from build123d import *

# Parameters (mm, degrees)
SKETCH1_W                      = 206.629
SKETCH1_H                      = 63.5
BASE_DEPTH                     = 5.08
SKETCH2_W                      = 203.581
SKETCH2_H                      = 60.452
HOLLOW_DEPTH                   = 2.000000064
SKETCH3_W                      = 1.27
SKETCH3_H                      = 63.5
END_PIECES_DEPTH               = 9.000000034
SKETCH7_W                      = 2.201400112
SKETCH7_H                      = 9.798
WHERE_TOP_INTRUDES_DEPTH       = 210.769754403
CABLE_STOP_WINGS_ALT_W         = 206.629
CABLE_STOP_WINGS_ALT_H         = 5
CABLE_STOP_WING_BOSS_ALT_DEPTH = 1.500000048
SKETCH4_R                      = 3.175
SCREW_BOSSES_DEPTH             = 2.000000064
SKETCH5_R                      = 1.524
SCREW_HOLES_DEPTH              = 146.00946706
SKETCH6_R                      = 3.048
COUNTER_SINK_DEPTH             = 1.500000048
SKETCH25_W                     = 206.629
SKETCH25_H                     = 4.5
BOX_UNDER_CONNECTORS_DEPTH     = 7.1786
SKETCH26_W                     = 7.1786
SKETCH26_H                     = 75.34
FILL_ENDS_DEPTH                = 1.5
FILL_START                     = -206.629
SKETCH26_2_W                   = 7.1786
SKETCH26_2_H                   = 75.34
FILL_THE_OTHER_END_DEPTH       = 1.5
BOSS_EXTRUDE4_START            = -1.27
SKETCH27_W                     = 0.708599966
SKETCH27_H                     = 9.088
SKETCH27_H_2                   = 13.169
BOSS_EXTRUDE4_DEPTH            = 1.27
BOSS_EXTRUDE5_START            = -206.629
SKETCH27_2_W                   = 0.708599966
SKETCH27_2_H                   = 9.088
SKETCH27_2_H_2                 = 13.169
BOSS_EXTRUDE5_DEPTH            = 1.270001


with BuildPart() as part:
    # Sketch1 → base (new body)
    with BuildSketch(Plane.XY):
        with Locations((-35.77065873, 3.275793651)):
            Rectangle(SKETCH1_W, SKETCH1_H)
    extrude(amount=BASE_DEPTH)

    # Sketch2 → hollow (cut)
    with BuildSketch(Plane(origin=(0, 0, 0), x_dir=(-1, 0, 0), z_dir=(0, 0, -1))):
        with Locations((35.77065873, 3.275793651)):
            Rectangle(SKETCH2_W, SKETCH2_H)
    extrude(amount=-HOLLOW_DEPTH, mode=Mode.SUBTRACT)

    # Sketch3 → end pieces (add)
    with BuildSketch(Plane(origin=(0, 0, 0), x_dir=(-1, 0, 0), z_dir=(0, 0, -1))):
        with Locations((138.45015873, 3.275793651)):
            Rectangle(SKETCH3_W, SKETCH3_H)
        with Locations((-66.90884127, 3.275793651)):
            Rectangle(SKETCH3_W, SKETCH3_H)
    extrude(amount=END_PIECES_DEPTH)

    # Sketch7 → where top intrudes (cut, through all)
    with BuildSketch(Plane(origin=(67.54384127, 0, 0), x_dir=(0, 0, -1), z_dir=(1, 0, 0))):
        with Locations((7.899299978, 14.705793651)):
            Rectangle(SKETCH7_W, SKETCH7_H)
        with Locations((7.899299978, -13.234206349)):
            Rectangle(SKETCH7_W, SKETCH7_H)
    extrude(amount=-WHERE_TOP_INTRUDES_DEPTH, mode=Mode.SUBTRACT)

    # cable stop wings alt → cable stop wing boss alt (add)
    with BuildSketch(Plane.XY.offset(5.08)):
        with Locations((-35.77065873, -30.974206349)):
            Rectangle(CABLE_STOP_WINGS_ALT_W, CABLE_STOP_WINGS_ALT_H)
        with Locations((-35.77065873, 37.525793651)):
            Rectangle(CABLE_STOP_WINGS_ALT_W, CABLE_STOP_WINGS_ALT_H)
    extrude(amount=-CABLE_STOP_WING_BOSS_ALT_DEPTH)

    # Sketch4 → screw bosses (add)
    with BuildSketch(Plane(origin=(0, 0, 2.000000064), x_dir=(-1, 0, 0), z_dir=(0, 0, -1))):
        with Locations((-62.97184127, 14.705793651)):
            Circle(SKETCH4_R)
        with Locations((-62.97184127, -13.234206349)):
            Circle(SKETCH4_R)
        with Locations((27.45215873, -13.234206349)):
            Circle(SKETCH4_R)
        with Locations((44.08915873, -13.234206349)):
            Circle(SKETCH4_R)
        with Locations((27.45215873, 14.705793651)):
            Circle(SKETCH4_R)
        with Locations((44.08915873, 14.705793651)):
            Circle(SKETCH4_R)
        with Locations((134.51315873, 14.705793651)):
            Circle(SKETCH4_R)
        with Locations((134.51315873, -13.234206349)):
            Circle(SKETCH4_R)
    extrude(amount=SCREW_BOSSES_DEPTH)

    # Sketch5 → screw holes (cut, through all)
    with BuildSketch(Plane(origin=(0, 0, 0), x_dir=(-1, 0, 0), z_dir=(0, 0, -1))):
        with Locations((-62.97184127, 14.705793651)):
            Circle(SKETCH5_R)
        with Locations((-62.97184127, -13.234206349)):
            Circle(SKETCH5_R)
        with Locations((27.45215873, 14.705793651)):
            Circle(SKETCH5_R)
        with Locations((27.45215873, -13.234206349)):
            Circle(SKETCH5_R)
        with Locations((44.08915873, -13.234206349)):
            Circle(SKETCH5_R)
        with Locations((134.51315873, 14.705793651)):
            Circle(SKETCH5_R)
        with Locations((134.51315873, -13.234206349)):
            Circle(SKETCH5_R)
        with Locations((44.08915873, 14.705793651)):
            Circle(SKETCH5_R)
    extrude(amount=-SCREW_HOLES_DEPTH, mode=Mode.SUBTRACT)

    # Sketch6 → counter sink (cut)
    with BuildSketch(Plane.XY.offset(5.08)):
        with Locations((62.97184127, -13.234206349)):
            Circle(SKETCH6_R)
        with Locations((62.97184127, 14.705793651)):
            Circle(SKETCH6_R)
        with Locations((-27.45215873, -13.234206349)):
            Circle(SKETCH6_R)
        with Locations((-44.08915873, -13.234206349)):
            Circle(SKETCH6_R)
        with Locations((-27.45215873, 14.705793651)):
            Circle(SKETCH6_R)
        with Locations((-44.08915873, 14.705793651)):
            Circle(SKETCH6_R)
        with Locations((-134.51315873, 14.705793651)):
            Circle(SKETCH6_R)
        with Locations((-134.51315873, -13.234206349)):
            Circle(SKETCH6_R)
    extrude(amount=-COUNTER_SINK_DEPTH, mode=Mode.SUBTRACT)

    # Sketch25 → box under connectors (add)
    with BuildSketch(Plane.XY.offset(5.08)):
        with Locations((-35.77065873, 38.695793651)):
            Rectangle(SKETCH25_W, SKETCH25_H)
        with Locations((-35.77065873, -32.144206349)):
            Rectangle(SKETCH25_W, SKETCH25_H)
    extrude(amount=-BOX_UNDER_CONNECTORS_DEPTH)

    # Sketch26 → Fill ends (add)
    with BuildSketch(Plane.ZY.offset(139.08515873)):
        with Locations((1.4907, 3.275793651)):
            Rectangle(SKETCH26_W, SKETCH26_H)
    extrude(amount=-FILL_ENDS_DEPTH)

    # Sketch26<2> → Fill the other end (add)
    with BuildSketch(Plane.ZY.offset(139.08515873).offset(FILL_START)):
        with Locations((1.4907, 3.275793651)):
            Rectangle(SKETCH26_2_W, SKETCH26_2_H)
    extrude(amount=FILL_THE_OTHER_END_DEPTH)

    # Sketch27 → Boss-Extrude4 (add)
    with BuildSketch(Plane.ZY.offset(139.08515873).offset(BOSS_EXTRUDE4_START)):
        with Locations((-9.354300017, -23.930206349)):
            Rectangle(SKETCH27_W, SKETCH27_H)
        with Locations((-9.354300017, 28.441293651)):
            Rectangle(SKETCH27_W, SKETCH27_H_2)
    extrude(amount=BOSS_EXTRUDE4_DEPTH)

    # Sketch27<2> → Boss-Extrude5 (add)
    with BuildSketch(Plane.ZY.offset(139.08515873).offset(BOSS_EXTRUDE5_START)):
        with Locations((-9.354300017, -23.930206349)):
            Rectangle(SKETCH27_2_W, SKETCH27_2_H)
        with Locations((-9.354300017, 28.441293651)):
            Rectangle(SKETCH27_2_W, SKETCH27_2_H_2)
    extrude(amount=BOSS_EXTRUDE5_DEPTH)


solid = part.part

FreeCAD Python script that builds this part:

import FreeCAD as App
import Part
import Sketcher
from FreeCAD import Vector
Q = App.Units.Quantity

doc = App.newDocument("Part")
body = doc.addObject("PartDesign::Body", "Body")

sketch1 = body.newObject("Sketcher::SketchObject", "Sketch")
sketch1.AttachmentSupport = (doc.getObject("XY_Plane"), [""])
sketch1.MapMode = "FlatFace"
sketch1.addGeometry([
    Part.LineSegment(Vector(-139, 35, 0), Vector(-139, -28, 0)),
    Part.LineSegment(Vector(-139, -28, 0), Vector(68, -28, 0)),
    Part.LineSegment(Vector(68, -28, 0), Vector(68, 35, 0)),
    Part.LineSegment(Vector(68, 35, 0), Vector(-139, 35, 0)),
], False)
sketch1.addConstraint([
    Sketcher.Constraint("Coincident", 0, 2, 1, 1),
    Sketcher.Constraint("Coincident", 1, 2, 2, 1),
    Sketcher.Constraint("Coincident", 2, 2, 3, 1),
    Sketcher.Constraint("Coincident", 3, 2, 0, 1),
    Sketcher.Constraint("Vertical", 0),
    Sketcher.Constraint("Horizontal", 1),
    Sketcher.Constraint("Vertical", 2),
    Sketcher.Constraint("Horizontal", 3),
    Sketcher.Constraint("DistanceY", 0, 2, 0, 1, Q("2.5 in")),
    Sketcher.Constraint("DistanceX", 1, 1, 1, 2, Q("8.135 in")),
    Sketcher.Constraint("DistanceX", 0, 2, -1, 1, Q("139.085159 mm")),
    Sketcher.Constraint("DistanceY", 0, 2, -1, 1, Q("28.474206 mm")),
])
pad1 = body.newObject("PartDesign::Pad", "Pad")
pad1.Profile = sketch1
pad1.Length = Q("0.2 in")

sketch2 = body.newObject("Sketcher::SketchObject", "Sketch001")
sketch2.AttachmentSupport = (doc.getObject("XY_Plane"), [""])
sketch2.MapMode = "FlatFace"
sketch2.addGeometry([
    Part.LineSegment(Vector(66, 34, 0), Vector(66, -27, 0)),
    Part.LineSegment(Vector(66, -27, 0), Vector(-138, -27, 0)),
    Part.LineSegment(Vector(-138, -27, 0), Vector(-138, 34, 0)),
    Part.LineSegment(Vector(-138, 34, 0), Vector(66, 34, 0)),
], False)
sketch2.addConstraint([
    Sketcher.Constraint("Coincident", 0, 2, 1, 1),
    Sketcher.Constraint("Coincident", 1, 2, 2, 1),
    Sketcher.Constraint("Coincident", 2, 2, 3, 1),
    Sketcher.Constraint("Coincident", 3, 2, 0, 1),
    Sketcher.Constraint("Vertical", 0),
    Sketcher.Constraint("Horizontal", 1),
    Sketcher.Constraint("Vertical", 2),
    Sketcher.Constraint("Horizontal", 3),
    Sketcher.Constraint("DistanceY", 0, 2, 0, 1, Q("2.38 in")),
    Sketcher.Constraint("DistanceX", 1, 2, 1, 1, Q("8.015 in")),
    Sketcher.Constraint("DistanceX", -1, 1, 0, 2, Q("66.019841 mm")),
    Sketcher.Constraint("DistanceY", 0, 2, -1, 1, Q("26.950206 mm")),
])
pocket1 = body.newObject("PartDesign::Pocket", "Pocket")
pocket1.Profile = sketch2
pocket1.Length = 2
pocket1.Reversed = True

sketch3 = body.newObject("Sketcher::SketchObject", "Sketch002")
sketch3.AttachmentSupport = (doc.getObject("XY_Plane"), [""])
sketch3.MapMode = "FlatFace"
sketch3.addGeometry([
    Part.LineSegment(Vector(-137.8, 35, 0), Vector(-137.8, -28.5, 0)),
    Part.LineSegment(Vector(-137.8, -28.5, 0), Vector(-139.1, -28.5, 0)),
    Part.LineSegment(Vector(-139.1, -28.5, 0), Vector(-139.1, 35, 0)),
    Part.LineSegment(Vector(-139.1, 35, 0), Vector(-137.8, 35, 0)),
    Part.LineSegment(Vector(67.5, 35, 0), Vector(67.5, -28.5, 0)),
    Part.LineSegment(Vector(67.5, -28.5, 0), Vector(66.3, -28.5, 0)),
    Part.LineSegment(Vector(66.3, -28.5, 0), Vector(66.3, 35, 0)),
    Part.LineSegment(Vector(66.3, 35, 0), Vector(67.5, 35, 0)),
], False)
sketch3.addConstraint([
    Sketcher.Constraint("Coincident", 0, 2, 1, 1),
    Sketcher.Constraint("Coincident", 1, 2, 2, 1),
    Sketcher.Constraint("Coincident", 2, 2, 3, 1),
    Sketcher.Constraint("Coincident", 3, 2, 0, 1),
    Sketcher.Constraint("Coincident", 4, 2, 5, 1),
    Sketcher.Constraint("Coincident", 5, 2, 6, 1),
    Sketcher.Constraint("Coincident", 6, 2, 7, 1),
    Sketcher.Constraint("Coincident", 7, 2, 4, 1),
    Sketcher.Constraint("Vertical", 0),
    Sketcher.Constraint("Horizontal", 1),
    Sketcher.Constraint("Vertical", 2),
    Sketcher.Constraint("Horizontal", 3),
    Sketcher.Constraint("Vertical", 4),
    Sketcher.Constraint("Horizontal", 5),
    Sketcher.Constraint("Vertical", 6),
    Sketcher.Constraint("Horizontal", 7),
    Sketcher.Constraint("Horizontal", 1, 2, 4, 2),
    Sketcher.Constraint("Horizontal", 3, 2, 6, 2),
    Sketcher.Constraint("Equal", 3, 5),
    Sketcher.Constraint("DistanceY", 0, 2, 0, 1, Q("2.5 in")),
    Sketcher.Constraint("DistanceX", 1, 2, 1, 1, Q("0.05 in")),
    Sketcher.Constraint("DistanceX", 0, 2, 4, 2, Q("8.085 in")),
    Sketcher.Constraint("DistanceX", 0, 2, -1, 1, Q("137.815159 mm")),
    Sketcher.Constraint("DistanceY", 0, 2, -1, 1, Q("28.474206 mm")),
])
pad2 = body.newObject("PartDesign::Pad", "Pad001")
pad2.Profile = sketch3
pad2.Length = 9
pad2.Reversed = True

sketch4 = body.newObject("Sketcher::SketchObject", "Sketch003")
sketch4.AttachmentSupport = (doc.getObject("YZ_Plane"), [""])
sketch4.MapMode = "FlatFace"
sketch4.AttachmentOffset = App.Placement(Vector(0, 0, 67.543841), App.Rotation())
sketch4.addGeometry([
    Part.LineSegment(Vector(19.6, -6.8, 0), Vector(9.8, -6.8, 0)),
    Part.LineSegment(Vector(9.8, -6.8, 0), Vector(9.8, -9, 0)),
    Part.LineSegment(Vector(9.8, -9, 0), Vector(19.6, -9, 0)),
    Part.LineSegment(Vector(19.6, -9, 0), Vector(19.6, -6.8, 0)),
    Part.LineSegment(Vector(-8.3, -6.8, 0), Vector(-18.1, -6.8, 0)),
    Part.LineSegment(Vector(-18.1, -6.8, 0), Vector(-18.1, -9, 0)),
    Part.LineSegment(Vector(-18.1, -9, 0), Vector(-8.3, -9, 0)),
    Part.LineSegment(Vector(-8.3, -9, 0), Vector(-8.3, -6.8, 0)),
], False)
sketch4.addConstraint([
    Sketcher.Constraint("Coincident", 0, 2, 1, 1),
    Sketcher.Constraint("Coincident", 1, 2, 2, 1),
    Sketcher.Constraint("Coincident", 2, 2, 3, 1),
    Sketcher.Constraint("Coincident", 3, 2, 0, 1),
    Sketcher.Constraint("Coincident", 4, 2, 5, 1),
    Sketcher.Constraint("Coincident", 5, 2, 6, 1),
    Sketcher.Constraint("Coincident", 6, 2, 7, 1),
    Sketcher.Constraint("Coincident", 7, 2, 4, 1),
    Sketcher.Constraint("Horizontal", 0),
    Sketcher.Constraint("Vertical", 1),
    Sketcher.Constraint("Horizontal", 2),
    Sketcher.Constraint("Vertical", 3),
    Sketcher.Constraint("Horizontal", 4),
    Sketcher.Constraint("Vertical", 5),
    Sketcher.Constraint("Horizontal", 6),
    Sketcher.Constraint("Vertical", 7),
    Sketcher.Constraint("Horizontal", 3, 2, 4, 2),
    Sketcher.Constraint("Horizontal", 2, 2, 5, 2),
    Sketcher.Constraint("Equal", 2, 4),
    Sketcher.Constraint("DistanceX", 4, 2, 0, 2, Q("1.1 in")),
    Sketcher.Constraint("DistanceX", 0, 2, 0, 1, Q("9.798 mm")),
    Sketcher.Constraint("DistanceY", 1, 2, 1, 1, Q("2.2014 mm")),
    Sketcher.Constraint("DistanceY", 0, 2, -1, 1, Q("6.7986 mm")),
    Sketcher.Constraint("DistanceX", -1, 1, 0, 2, Q("9.806794 mm")),
])
pocket2 = body.newObject("PartDesign::Pocket", "Pocket001")
pocket2.Profile = sketch4
pocket2.Type = "ThroughAll"

sketch5 = body.newObject("Sketcher::SketchObject", "Sketch004")
sketch5.AttachmentSupport = (doc.getObject("XY_Plane"), [""])
sketch5.MapMode = "FlatFace"
sketch5.AttachmentOffset = App.Placement(Vector(0, 0, 0.2 * 25.4), App.Rotation())
sketch5.addGeometry([
    Part.LineSegment(Vector(-139, -28, 0), Vector(-139, -33, 0)),
    Part.LineSegment(Vector(-139, -33, 0), Vector(68, -33, 0)),
    Part.LineSegment(Vector(68, -33, 0), Vector(68, -28, 0)),
    Part.LineSegment(Vector(68, -28, 0), Vector(-139, -28, 0)),
    Part.LineSegment(Vector(-139, 40, 0), Vector(-139, 35, 0)),
    Part.LineSegment(Vector(-139, 35, 0), Vector(68, 35, 0)),
    Part.LineSegment(Vector(68, 35, 0), Vector(68, 40, 0)),
    Part.LineSegment(Vector(68, 40, 0), Vector(-139, 40, 0)),
], False)
sketch5.addConstraint([
    Sketcher.Constraint("Coincident", 0, 2, 1, 1),
    Sketcher.Constraint("Coincident", 1, 2, 2, 1),
    Sketcher.Constraint("Coincident", 2, 2, 3, 1),
    Sketcher.Constraint("Coincident", 3, 2, 0, 1),
    Sketcher.Constraint("Coincident", 4, 2, 5, 1),
    Sketcher.Constraint("Coincident", 5, 2, 6, 1),
    Sketcher.Constraint("Coincident", 6, 2, 7, 1),
    Sketcher.Constraint("Coincident", 7, 2, 4, 1),
    Sketcher.Constraint("Vertical", 0),
    Sketcher.Constraint("Horizontal", 1),
    Sketcher.Constraint("Vertical", 2),
    Sketcher.Constraint("Horizontal", 3),
    Sketcher.Constraint("Vertical", 4),
    Sketcher.Constraint("Horizontal", 5),
    Sketcher.Constraint("Vertical", 6),
    Sketcher.Constraint("Horizontal", 7),
    Sketcher.Constraint("Vertical", 3, 2, 4, 2),
    Sketcher.Constraint("Vertical", 2, 2, 5, 2),
    Sketcher.Constraint("Equal", 2, 4),
    Sketcher.Constraint("DistanceY", 3, 2, 4, 2, Q("2.5 in")),
    Sketcher.Constraint("DistanceX", 1, 1, 1, 2, Q("8.135 in")),
    Sketcher.Constraint("DistanceY", 0, 2, 0, 1, Q("5 mm")),
    Sketcher.Constraint("DistanceX", 0, 2, -1, 1, Q("139.085159 mm")),
    Sketcher.Constraint("DistanceY", 0, 2, -1, 1, Q("33.474206 mm")),
])
pad3 = body.newObject("PartDesign::Pad", "Pad002")
pad3.Profile = sketch5
pad3.Length = 1.5
pad3.Reversed = True

sketch6 = body.newObject("Sketcher::SketchObject", "Sketch005")
sketch6.AttachmentSupport = (doc.getObject("XY_Plane"), [""])
sketch6.MapMode = "FlatFace"
sketch6.AttachmentOffset = App.Placement(Vector(0, 0, 2), App.Rotation())
sketch6.addGeometry([
    Part.Circle(Vector(63, 14.7, 0), Vector(0, 0, 1), 3.2),
    Part.Circle(Vector(63, -13.2, 0), Vector(0, 0, 1), 3.2),
    Part.Circle(Vector(-27.5, -13.2, 0), Vector(0, 0, 1), 3.2),
    Part.Circle(Vector(-44.1, -13.2, 0), Vector(0, 0, 1), 3.2),
    Part.Circle(Vector(-27.5, 14.7, 0), Vector(0, 0, 1), 3.2),
    Part.Circle(Vector(-44.1, 14.7, 0), Vector(0, 0, 1), 3.2),
    Part.Circle(Vector(-134.5, 14.7, 0), Vector(0, 0, 1), 3.2),
    Part.Circle(Vector(-134.5, -13.2, 0), Vector(0, 0, 1), 3.2),
], False)
sketch6.addConstraint([
    Sketcher.Constraint("Equal", 0, 1),
    Sketcher.Constraint("Equal", 1, 2),
    Sketcher.Constraint("Equal", 2, 3),
    Sketcher.Constraint("Equal", 3, 4),
    Sketcher.Constraint("Equal", 4, 5),
    Sketcher.Constraint("Equal", 5, 6),
    Sketcher.Constraint("Equal", 6, 7),
    Sketcher.Constraint("Horizontal", 1, 3, 2, 3),
    Sketcher.Constraint("Horizontal", 2, 3, 3, 3),
    Sketcher.Constraint("Horizontal", 0, 3, 4, 3),
    Sketcher.Constraint("Horizontal", 4, 3, 5, 3),
    Sketcher.Constraint("Horizontal", 5, 3, 6, 3),
    Sketcher.Constraint("Horizontal", 3, 3, 7, 3),
    Sketcher.Constraint("Vertical", 0, 3, 1, 3),
    Sketcher.Constraint("Vertical", 2, 3, 4, 3),
    Sketcher.Constraint("Vertical", 3, 3, 5, 3),
    Sketcher.Constraint("Vertical", 6, 3, 7, 3),
    Sketcher.Constraint("Diameter", 0, Q("0.25 in")),
    Sketcher.Constraint("DistanceY", 1, 3, 0, 3, Q("1.1 in")),
    Sketcher.Constraint("DistanceX", 2, 3, 1, 3, Q("3.56 in")),
    Sketcher.Constraint("DistanceX", 6, 3, 5, 3, Q("3.56 in")),
    Sketcher.Constraint("DistanceX", 3, 3, 2, 3, Q("0.655 in")),
    Sketcher.Constraint("DistanceX", -1, 1, 0, 3, Q("62.971841 mm")),
    Sketcher.Constraint("DistanceY", -1, 1, 0, 3, Q("14.705794 mm")),
])
pad4 = body.newObject("PartDesign::Pad", "Pad003")
pad4.Profile = sketch6
pad4.Length = 2
pad4.Reversed = True

sketch7 = body.newObject("Sketcher::SketchObject", "Sketch006")
sketch7.AttachmentSupport = (doc.getObject("XY_Plane"), [""])
sketch7.MapMode = "FlatFace"
sketch7.addGeometry([
    Part.Circle(Vector(63, 14.7, 0), Vector(0, 0, 1), 1.5),
    Part.Circle(Vector(63, -13.2, 0), Vector(0, 0, 1), 1.5),
    Part.Circle(Vector(-27.5, 14.7, 0), Vector(0, 0, 1), 1.5),
    Part.Circle(Vector(-27.5, -13.2, 0), Vector(0, 0, 1), 1.5),
    Part.Circle(Vector(-44.1, -13.2, 0), Vector(0, 0, 1), 1.5),
    Part.Circle(Vector(-134.5, 14.7, 0), Vector(0, 0, 1), 1.5),
    Part.Circle(Vector(-134.5, -13.2, 0), Vector(0, 0, 1), 1.5),
    Part.Circle(Vector(-44.1, 14.7, 0), Vector(0, 0, 1), 1.5),
], False)
sketch7.addConstraint([
    Sketcher.Constraint("Equal", 0, 1),
    Sketcher.Constraint("Equal", 1, 2),
    Sketcher.Constraint("Equal", 2, 3),
    Sketcher.Constraint("Equal", 3, 4),
    Sketcher.Constraint("Equal", 4, 5),
    Sketcher.Constraint("Equal", 5, 6),
    Sketcher.Constraint("Equal", 6, 7),
    Sketcher.Constraint("Horizontal", 0, 3, 2, 3),
    Sketcher.Constraint("Horizontal", 1, 3, 3, 3),
    Sketcher.Constraint("Horizontal", 3, 3, 4, 3),
    Sketcher.Constraint("Horizontal", 2, 3, 5, 3),
    Sketcher.Constraint("Horizontal", 4, 3, 6, 3),
    Sketcher.Constraint("Horizontal", 5, 3, 7, 3),
    Sketcher.Constraint("Vertical", 0, 3, 1, 3),
    Sketcher.Constraint("Vertical", 2, 3, 3, 3),
    Sketcher.Constraint("Vertical", 5, 3, 6, 3),
    Sketcher.Constraint("Vertical", 4, 3, 7, 3),
    Sketcher.Constraint("Diameter", 0, Q("0.12 in")),
    Sketcher.Constraint("DistanceY", 1, 3, 0, 3, Q("1.1 in")),
    Sketcher.Constraint("DistanceX", 2, 3, 0, 3, Q("3.56 in")),
    Sketcher.Constraint("DistanceX", 5, 3, 4, 3, Q("3.56 in")),
    Sketcher.Constraint("DistanceX", 4, 3, 3, 3, Q("0.655 in")),
    Sketcher.Constraint("DistanceX", -1, 1, 0, 3, Q("62.971841 mm")),
    Sketcher.Constraint("DistanceY", -1, 1, 0, 3, Q("14.705794 mm")),
])
pocket3 = body.newObject("PartDesign::Pocket", "Pocket002")
pocket3.Profile = sketch7
pocket3.Type = "ThroughAll"
pocket3.Reversed = True

sketch8 = body.newObject("Sketcher::SketchObject", "Sketch007")
sketch8.AttachmentSupport = (doc.getObject("XY_Plane"), [""])
sketch8.MapMode = "FlatFace"
sketch8.AttachmentOffset = App.Placement(Vector(0, 0, 0.2 * 25.4), App.Rotation())
sketch8.addGeometry([
    Part.Circle(Vector(63, -13.2, 0), Vector(0, 0, 1), 3),
    Part.Circle(Vector(63, 14.7, 0), Vector(0, 0, 1), 3),
    Part.Circle(Vector(-27.5, -13.2, 0), Vector(0, 0, 1), 3),
    Part.Circle(Vector(-44.1, -13.2, 0), Vector(0, 0, 1), 3),
    Part.Circle(Vector(-27.5, 14.7, 0), Vector(0, 0, 1), 3),
    Part.Circle(Vector(-44.1, 14.7, 0), Vector(0, 0, 1), 3),
    Part.Circle(Vector(-134.5, 14.7, 0), Vector(0, 0, 1), 3),
    Part.Circle(Vector(-134.5, -13.2, 0), Vector(0, 0, 1), 3),
], False)
sketch8.addConstraint([
    Sketcher.Constraint("Equal", 0, 1),
    Sketcher.Constraint("Equal", 1, 2),
    Sketcher.Constraint("Equal", 2, 3),
    Sketcher.Constraint("Equal", 3, 4),
    Sketcher.Constraint("Equal", 4, 5),
    Sketcher.Constraint("Equal", 5, 6),
    Sketcher.Constraint("Equal", 6, 7),
    Sketcher.Constraint("Horizontal", 0, 3, 2, 3),
    Sketcher.Constraint("Horizontal", 2, 3, 3, 3),
    Sketcher.Constraint("Horizontal", 1, 3, 4, 3),
    Sketcher.Constraint("Horizontal", 4, 3, 5, 3),
    Sketcher.Constraint("Horizontal", 5, 3, 6, 3),
    Sketcher.Constraint("Horizontal", 3, 3, 7, 3),
    Sketcher.Constraint("Vertical", 0, 3, 1, 3),
    Sketcher.Constraint("Vertical", 2, 3, 4, 3),
    Sketcher.Constraint("Vertical", 3, 3, 5, 3),
    Sketcher.Constraint("Vertical", 6, 3, 7, 3),
    Sketcher.Constraint("Diameter", 0, Q("0.24 in")),
    Sketcher.Constraint("DistanceY", 0, 3, 1, 3, Q("1.1 in")),
    Sketcher.Constraint("DistanceX", 2, 3, 0, 3, Q("3.56 in")),
    Sketcher.Constraint("DistanceX", 6, 3, 5, 3, Q("3.56 in")),
    Sketcher.Constraint("DistanceX", 3, 3, 2, 3, Q("0.655 in")),
    Sketcher.Constraint("DistanceX", -1, 1, 0, 3, Q("62.971841 mm")),
    Sketcher.Constraint("DistanceY", 0, 3, -1, 1, Q("13.234206 mm")),
])
pocket4 = body.newObject("PartDesign::Pocket", "Pocket003")
pocket4.Profile = sketch8
pocket4.Length = 1.5

sketch9 = body.newObject("Sketcher::SketchObject", "Sketch008")
sketch9.AttachmentSupport = (doc.getObject("XY_Plane"), [""])
sketch9.MapMode = "FlatFace"
sketch9.AttachmentOffset = App.Placement(Vector(0, 0, 0.2 * 25.4), App.Rotation())
sketch9.addGeometry([
    Part.LineSegment(Vector(-139.1, 40.9, 0), Vector(-139.1, 36.4, 0)),
    Part.LineSegment(Vector(-139.1, 36.4, 0), Vector(67.5, 36.4, 0)),
    Part.LineSegment(Vector(67.5, 36.4, 0), Vector(67.5, 40.9, 0)),
    Part.LineSegment(Vector(67.5, 40.9, 0), Vector(-139.1, 40.9, 0)),
    Part.LineSegment(Vector(-139.1, -29.9, 0), Vector(-139.1, -34.4, 0)),
    Part.LineSegment(Vector(-139.1, -34.4, 0), Vector(67.5, -34.4, 0)),
    Part.LineSegment(Vector(67.5, -34.4, 0), Vector(67.5, -29.9, 0)),
    Part.LineSegment(Vector(67.5, -29.9, 0), Vector(-139.1, -29.9, 0)),
], False)
sketch9.addConstraint([
    Sketcher.Constraint("Coincident", 0, 2, 1, 1),
    Sketcher.Constraint("Coincident", 1, 2, 2, 1),
    Sketcher.Constraint("Coincident", 2, 2, 3, 1),
    Sketcher.Constraint("Coincident", 3, 2, 0, 1),
    Sketcher.Constraint("Coincident", 4, 2, 5, 1),
    Sketcher.Constraint("Coincident", 5, 2, 6, 1),
    Sketcher.Constraint("Coincident", 6, 2, 7, 1),
    Sketcher.Constraint("Coincident", 7, 2, 4, 1),
    Sketcher.Constraint("Vertical", 0),
    Sketcher.Constraint("Horizontal", 1),
    Sketcher.Constraint("Vertical", 2),
    Sketcher.Constraint("Horizontal", 3),
    Sketcher.Constraint("Vertical", 4),
    Sketcher.Constraint("Horizontal", 5),
    Sketcher.Constraint("Vertical", 6),
    Sketcher.Constraint("Horizontal", 7),
    Sketcher.Constraint("Vertical", 3, 2, 4, 2),
    Sketcher.Constraint("Vertical", 2, 2, 5, 2),
    Sketcher.Constraint("Equal", 2, 4),
    Sketcher.Constraint("DistanceX", 1, 1, 1, 2, Q("8.135 in")),
    Sketcher.Constraint("DistanceY", 0, 2, 0, 1, Q("4.5 mm")),
    Sketcher.Constraint("DistanceY", 4, 2, 0, 2, Q("70.84 mm")),
    Sketcher.Constraint("DistanceX", 0, 2, -1, 1, Q("139.085159 mm")),
    Sketcher.Constraint("DistanceY", -1, 1, 0, 2, Q("36.445794 mm")),
])
pad5 = body.newObject("PartDesign::Pad", "Pad004")
pad5.Profile = sketch9
pad5.Length = 7.1786
pad5.Reversed = True

sketch10 = body.newObject("Sketcher::SketchObject", "Sketch009")
sketch10.AttachmentSupport = (doc.getObject("YZ_Plane"), [""])
sketch10.MapMode = "FlatFace"
sketch10.AttachmentOffset = App.Placement(Vector(0, 0, -139.085159), App.Rotation())
sketch10.addGeometry([
    Part.LineSegment(Vector(41, -2, 0), Vector(-34, -2, 0)),
    Part.LineSegment(Vector(-34, -2, 0), Vector(-34, 5, 0)),
    Part.LineSegment(Vector(-34, 5, 0), Vector(41, 5, 0)),
    Part.LineSegment(Vector(41, 5, 0), Vector(41, -2, 0)),
], False)
sketch10.addConstraint([
    Sketcher.Constraint("Coincident", 0, 2, 1, 1),
    Sketcher.Constraint("Coincident", 1, 2, 2, 1),
    Sketcher.Constraint("Coincident", 2, 2, 3, 1),
    Sketcher.Constraint("Coincident", 3, 2, 0, 1),
    Sketcher.Constraint("Horizontal", 0),
    Sketcher.Constraint("Vertical", 1),
    Sketcher.Constraint("Horizontal", 2),
    Sketcher.Constraint("Vertical", 3),
    Sketcher.Constraint("DistanceY", -1, 1, 1, 2, Q("0.2 in")),
    Sketcher.Constraint("DistanceX", 0, 2, 0, 1, Q("75.34 mm")),
    Sketcher.Constraint("DistanceY", 1, 1, 1, 2, Q("7.1786 mm")),
    Sketcher.Constraint("DistanceX", 0, 2, -1, 1, Q("34.394206 mm")),
])
pad6 = body.newObject("PartDesign::Pad", "Pad005")
pad6.Profile = sketch10
pad6.Length = 1.5

sketch11 = body.newObject("Sketcher::SketchObject", "Sketch010")
sketch11.AttachmentSupport = (doc.getObject("YZ_Plane"), [""])
sketch11.MapMode = "FlatFace"
sketch11.AttachmentOffset = App.Placement(Vector(0, 0, 67.543841), App.Rotation())
sketch11.addGeometry([
    Part.LineSegment(Vector(41, -2, 0), Vector(-34, -2, 0)),
    Part.LineSegment(Vector(-34, -2, 0), Vector(-34, 5, 0)),
    Part.LineSegment(Vector(-34, 5, 0), Vector(41, 5, 0)),
    Part.LineSegment(Vector(41, 5, 0), Vector(41, -2, 0)),
], False)
sketch11.addConstraint([
    Sketcher.Constraint("Coincident", 0, 2, 1, 1),
    Sketcher.Constraint("Coincident", 1, 2, 2, 1),
    Sketcher.Constraint("Coincident", 2, 2, 3, 1),
    Sketcher.Constraint("Coincident", 3, 2, 0, 1),
    Sketcher.Constraint("Horizontal", 0),
    Sketcher.Constraint("Vertical", 1),
    Sketcher.Constraint("Horizontal", 2),
    Sketcher.Constraint("Vertical", 3),
    Sketcher.Constraint("DistanceY", -1, 1, 1, 2, Q("0.2 in")),
    Sketcher.Constraint("DistanceX", 0, 2, 0, 1, Q("75.34 mm")),
    Sketcher.Constraint("DistanceY", 1, 1, 1, 2, Q("7.1786 mm")),
    Sketcher.Constraint("DistanceX", 0, 2, -1, 1, Q("34.394206 mm")),
])
pad7 = body.newObject("PartDesign::Pad", "Pad006")
pad7.Profile = sketch11
pad7.Length = 1.5
pad7.Reversed = True

sketch12 = body.newObject("Sketcher::SketchObject", "Sketch011")
sketch12.AttachmentSupport = (doc.getObject("YZ_Plane"), [""])
sketch12.MapMode = "FlatFace"
sketch12.AttachmentOffset = App.Placement(Vector(0, 0, -137.815159), App.Rotation())
sketch12.addGeometry([
    Part.LineSegment(Vector(-19.4, -9.7, 0), Vector(-28.5, -9.7, 0)),
    Part.LineSegment(Vector(-28.5, -9.7, 0), Vector(-28.5, -9, 0)),
    Part.LineSegment(Vector(-28.5, -9, 0), Vector(-19.4, -9, 0)),
    Part.LineSegment(Vector(-19.4, -9, 0), Vector(-19.4, -9.7, 0)),
    Part.LineSegment(Vector(35, -9.7, 0), Vector(21.9, -9.7, 0)),
    Part.LineSegment(Vector(21.9, -9.7, 0), Vector(21.9, -9, 0)),
    Part.LineSegment(Vector(21.9, -9, 0), Vector(35, -9, 0)),
    Part.LineSegment(Vector(35, -9, 0), Vector(35, -9.7, 0)),
], False)
sketch12.addConstraint([
    Sketcher.Constraint("Coincident", 0, 2, 1, 1),
    Sketcher.Constraint("Coincident", 1, 2, 2, 1),
    Sketcher.Constraint("Coincident", 2, 2, 3, 1),
    Sketcher.Constraint("Coincident", 3, 2, 0, 1),
    Sketcher.Constraint("Coincident", 4, 2, 5, 1),
    Sketcher.Constraint("Coincident", 5, 2, 6, 1),
    Sketcher.Constraint("Coincident", 6, 2, 7, 1),
    Sketcher.Constraint("Coincident", 7, 2, 4, 1),
    Sketcher.Constraint("Horizontal", 0),
    Sketcher.Constraint("Vertical", 1),
    Sketcher.Constraint("Horizontal", 2),
    Sketcher.Constraint("Vertical", 3),
    Sketcher.Constraint("Horizontal", 4),
    Sketcher.Constraint("Vertical", 5),
    Sketcher.Constraint("Horizontal", 6),
    Sketcher.Constraint("Vertical", 7),
    Sketcher.Constraint("Horizontal", 3, 2, 4, 2),
    Sketcher.Constraint("Horizontal", 2, 2, 5, 2),
    Sketcher.Constraint("DistanceX", 1, 2, 6, 2, Q("2.5 in")),
    Sketcher.Constraint("DistanceX", 0, 2, 0, 1, Q("9.088 mm")),
    Sketcher.Constraint("DistanceX", 4, 2, 4, 1, Q("13.169 mm")),
    Sketcher.Constraint("DistanceY", 1, 1, 1, 2, Q("0.7086 mm")),
    Sketcher.Constraint("DistanceY", 0, 2, -1, 1, Q("9.7086 mm")),
    Sketcher.Constraint("DistanceX", 0, 2, -1, 1, Q("28.474206 mm")),
])
pad8 = body.newObject("PartDesign::Pad", "Pad007")
pad8.Profile = sketch12
pad8.Length = Q("0.05 in")
pad8.Reversed = True

sketch13 = body.newObject("Sketcher::SketchObject", "Sketch012")
sketch13.AttachmentSupport = (doc.getObject("YZ_Plane"), [""])
sketch13.MapMode = "FlatFace"
sketch13.AttachmentOffset = App.Placement(Vector(0, 0, 67.543841), App.Rotation())
sketch13.addGeometry([
    Part.LineSegment(Vector(-19.4, -9.7, 0), Vector(-28.5, -9.7, 0)),
    Part.LineSegment(Vector(-28.5, -9.7, 0), Vector(-28.5, -9, 0)),
    Part.LineSegment(Vector(-28.5, -9, 0), Vector(-19.4, -9, 0)),
    Part.LineSegment(Vector(-19.4, -9, 0), Vector(-19.4, -9.7, 0)),
    Part.LineSegment(Vector(35, -9.7, 0), Vector(21.9, -9.7, 0)),
    Part.LineSegment(Vector(21.9, -9.7, 0), Vector(21.9, -9, 0)),
    Part.LineSegment(Vector(21.9, -9, 0), Vector(35, -9, 0)),
    Part.LineSegment(Vector(35, -9, 0), Vector(35, -9.7, 0)),
], False)
sketch13.addConstraint([
    Sketcher.Constraint("Coincident", 0, 2, 1, 1),
    Sketcher.Constraint("Coincident", 1, 2, 2, 1),
    Sketcher.Constraint("Coincident", 2, 2, 3, 1),
    Sketcher.Constraint("Coincident", 3, 2, 0, 1),
    Sketcher.Constraint("Coincident", 4, 2, 5, 1),
    Sketcher.Constraint("Coincident", 5, 2, 6, 1),
    Sketcher.Constraint("Coincident", 6, 2, 7, 1),
    Sketcher.Constraint("Coincident", 7, 2, 4, 1),
    Sketcher.Constraint("Horizontal", 0),
    Sketcher.Constraint("Vertical", 1),
    Sketcher.Constraint("Horizontal", 2),
    Sketcher.Constraint("Vertical", 3),
    Sketcher.Constraint("Horizontal", 4),
    Sketcher.Constraint("Vertical", 5),
    Sketcher.Constraint("Horizontal", 6),
    Sketcher.Constraint("Vertical", 7),
    Sketcher.Constraint("Horizontal", 3, 2, 4, 2),
    Sketcher.Constraint("Horizontal", 2, 2, 5, 2),
    Sketcher.Constraint("DistanceX", 1, 2, 6, 2, Q("2.5 in")),
    Sketcher.Constraint("DistanceX", 0, 2, 0, 1, Q("9.088 mm")),
    Sketcher.Constraint("DistanceX", 4, 2, 4, 1, Q("13.169 mm")),
    Sketcher.Constraint("DistanceY", 1, 1, 1, 2, Q("0.7086 mm")),
    Sketcher.Constraint("DistanceY", 0, 2, -1, 1, Q("9.7086 mm")),
    Sketcher.Constraint("DistanceX", 0, 2, -1, 1, Q("28.474206 mm")),
])
pad9 = body.newObject("PartDesign::Pad", "Pad008")
pad9.Profile = sketch13
pad9.Length = Q("0.05 in")
pad9.Reversed = True

doc.recompute()
